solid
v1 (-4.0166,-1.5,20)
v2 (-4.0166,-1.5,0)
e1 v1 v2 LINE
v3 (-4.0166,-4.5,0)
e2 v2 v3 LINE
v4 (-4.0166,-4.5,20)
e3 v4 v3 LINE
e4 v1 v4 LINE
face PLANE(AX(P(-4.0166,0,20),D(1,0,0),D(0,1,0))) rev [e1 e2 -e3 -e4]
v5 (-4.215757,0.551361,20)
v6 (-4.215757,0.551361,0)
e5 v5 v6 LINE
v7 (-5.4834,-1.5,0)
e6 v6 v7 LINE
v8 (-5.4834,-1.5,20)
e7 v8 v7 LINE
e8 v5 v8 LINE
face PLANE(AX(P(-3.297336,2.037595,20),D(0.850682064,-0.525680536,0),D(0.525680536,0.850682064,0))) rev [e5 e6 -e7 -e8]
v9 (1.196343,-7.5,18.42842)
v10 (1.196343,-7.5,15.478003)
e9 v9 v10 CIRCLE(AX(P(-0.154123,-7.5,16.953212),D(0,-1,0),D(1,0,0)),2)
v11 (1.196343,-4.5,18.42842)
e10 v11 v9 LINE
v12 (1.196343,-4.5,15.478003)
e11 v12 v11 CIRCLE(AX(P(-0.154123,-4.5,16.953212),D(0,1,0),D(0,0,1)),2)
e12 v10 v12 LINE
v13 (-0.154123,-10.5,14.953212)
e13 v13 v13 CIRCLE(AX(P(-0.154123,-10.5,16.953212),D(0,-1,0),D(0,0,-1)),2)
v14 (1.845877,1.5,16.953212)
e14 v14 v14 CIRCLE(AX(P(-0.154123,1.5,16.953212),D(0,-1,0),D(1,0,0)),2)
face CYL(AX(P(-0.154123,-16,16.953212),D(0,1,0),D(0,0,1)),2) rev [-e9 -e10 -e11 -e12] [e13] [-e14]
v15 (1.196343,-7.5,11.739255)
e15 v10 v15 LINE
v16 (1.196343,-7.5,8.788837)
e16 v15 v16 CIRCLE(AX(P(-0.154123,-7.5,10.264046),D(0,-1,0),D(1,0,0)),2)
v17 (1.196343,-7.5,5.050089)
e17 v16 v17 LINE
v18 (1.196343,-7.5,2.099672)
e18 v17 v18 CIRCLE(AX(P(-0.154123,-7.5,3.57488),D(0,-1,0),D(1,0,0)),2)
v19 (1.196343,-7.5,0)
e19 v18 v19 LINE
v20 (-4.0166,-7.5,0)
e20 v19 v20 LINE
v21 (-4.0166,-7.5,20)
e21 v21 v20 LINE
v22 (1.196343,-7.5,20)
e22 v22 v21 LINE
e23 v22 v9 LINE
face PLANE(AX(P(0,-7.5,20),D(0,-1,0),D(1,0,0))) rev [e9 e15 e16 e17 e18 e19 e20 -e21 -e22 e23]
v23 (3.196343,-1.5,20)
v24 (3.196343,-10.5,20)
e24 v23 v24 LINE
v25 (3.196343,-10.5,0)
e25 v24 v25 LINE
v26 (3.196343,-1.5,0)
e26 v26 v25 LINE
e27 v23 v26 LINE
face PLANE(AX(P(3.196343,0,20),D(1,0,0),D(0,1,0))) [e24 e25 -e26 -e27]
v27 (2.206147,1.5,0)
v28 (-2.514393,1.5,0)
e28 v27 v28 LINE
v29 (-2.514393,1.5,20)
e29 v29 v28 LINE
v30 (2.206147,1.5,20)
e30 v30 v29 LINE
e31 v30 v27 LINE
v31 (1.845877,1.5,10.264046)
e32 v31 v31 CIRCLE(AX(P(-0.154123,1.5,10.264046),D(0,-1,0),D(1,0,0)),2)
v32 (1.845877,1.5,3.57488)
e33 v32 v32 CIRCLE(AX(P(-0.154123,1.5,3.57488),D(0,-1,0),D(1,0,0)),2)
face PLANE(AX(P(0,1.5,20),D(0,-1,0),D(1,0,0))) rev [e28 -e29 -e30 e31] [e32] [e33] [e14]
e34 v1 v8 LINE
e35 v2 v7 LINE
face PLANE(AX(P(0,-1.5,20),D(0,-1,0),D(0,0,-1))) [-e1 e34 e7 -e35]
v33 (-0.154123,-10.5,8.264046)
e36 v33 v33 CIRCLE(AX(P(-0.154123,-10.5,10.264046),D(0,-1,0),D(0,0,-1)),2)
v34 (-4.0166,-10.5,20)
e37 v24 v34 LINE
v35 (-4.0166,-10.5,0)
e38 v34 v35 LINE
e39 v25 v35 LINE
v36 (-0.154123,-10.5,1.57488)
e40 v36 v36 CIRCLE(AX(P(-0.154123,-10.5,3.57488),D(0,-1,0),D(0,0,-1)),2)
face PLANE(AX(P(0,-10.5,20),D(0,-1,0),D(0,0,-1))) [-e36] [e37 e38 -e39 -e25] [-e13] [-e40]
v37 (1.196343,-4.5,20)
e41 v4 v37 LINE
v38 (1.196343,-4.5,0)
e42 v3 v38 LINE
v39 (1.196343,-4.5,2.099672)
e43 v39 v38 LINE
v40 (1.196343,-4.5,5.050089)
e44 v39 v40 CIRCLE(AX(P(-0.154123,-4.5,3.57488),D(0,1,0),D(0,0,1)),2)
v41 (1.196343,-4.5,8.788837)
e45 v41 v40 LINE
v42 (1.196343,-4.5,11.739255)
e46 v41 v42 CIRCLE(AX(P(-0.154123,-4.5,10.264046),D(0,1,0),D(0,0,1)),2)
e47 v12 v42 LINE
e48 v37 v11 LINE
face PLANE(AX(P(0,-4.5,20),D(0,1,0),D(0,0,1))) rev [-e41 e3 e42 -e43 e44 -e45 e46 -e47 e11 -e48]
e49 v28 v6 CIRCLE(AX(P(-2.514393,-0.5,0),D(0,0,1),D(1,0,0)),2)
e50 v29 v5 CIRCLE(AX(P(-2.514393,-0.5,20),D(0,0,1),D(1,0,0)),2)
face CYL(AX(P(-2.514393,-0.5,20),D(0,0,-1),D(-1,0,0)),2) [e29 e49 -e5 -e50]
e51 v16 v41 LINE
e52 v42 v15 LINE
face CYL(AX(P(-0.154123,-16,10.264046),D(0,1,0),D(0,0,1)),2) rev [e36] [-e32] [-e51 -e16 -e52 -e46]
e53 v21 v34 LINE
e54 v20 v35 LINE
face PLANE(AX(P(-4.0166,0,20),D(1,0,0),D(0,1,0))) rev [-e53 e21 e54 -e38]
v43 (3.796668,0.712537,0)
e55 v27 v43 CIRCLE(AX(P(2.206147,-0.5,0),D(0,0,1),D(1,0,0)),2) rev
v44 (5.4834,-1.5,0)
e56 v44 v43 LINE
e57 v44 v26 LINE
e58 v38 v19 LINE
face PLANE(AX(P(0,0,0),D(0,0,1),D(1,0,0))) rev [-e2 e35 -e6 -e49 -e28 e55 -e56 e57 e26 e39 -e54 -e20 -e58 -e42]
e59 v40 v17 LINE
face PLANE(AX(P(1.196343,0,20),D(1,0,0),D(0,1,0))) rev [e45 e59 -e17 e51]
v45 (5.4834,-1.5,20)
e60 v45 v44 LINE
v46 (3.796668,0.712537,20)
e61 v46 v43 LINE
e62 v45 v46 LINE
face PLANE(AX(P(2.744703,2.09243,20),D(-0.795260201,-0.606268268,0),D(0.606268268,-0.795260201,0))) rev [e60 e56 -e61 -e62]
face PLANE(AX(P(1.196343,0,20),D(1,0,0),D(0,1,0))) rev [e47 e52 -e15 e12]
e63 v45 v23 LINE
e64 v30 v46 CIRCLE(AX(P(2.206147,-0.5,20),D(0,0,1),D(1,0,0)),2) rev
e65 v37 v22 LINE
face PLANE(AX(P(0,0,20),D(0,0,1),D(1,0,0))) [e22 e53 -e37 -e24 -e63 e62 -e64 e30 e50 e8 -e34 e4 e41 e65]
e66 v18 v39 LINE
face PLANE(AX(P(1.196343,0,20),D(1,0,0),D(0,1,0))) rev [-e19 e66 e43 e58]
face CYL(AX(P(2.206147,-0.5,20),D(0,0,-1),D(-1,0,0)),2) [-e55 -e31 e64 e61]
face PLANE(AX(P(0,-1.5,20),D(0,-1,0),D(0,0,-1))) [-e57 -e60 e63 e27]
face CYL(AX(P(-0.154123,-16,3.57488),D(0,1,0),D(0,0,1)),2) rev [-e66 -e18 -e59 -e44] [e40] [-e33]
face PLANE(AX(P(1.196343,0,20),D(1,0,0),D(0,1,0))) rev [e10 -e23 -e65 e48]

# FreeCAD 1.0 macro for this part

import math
import FreeCAD as App
import Part
import Sketcher

V = App.Vector
Q = App.Units.Quantity

doc = App.newDocument("Part")
body = doc.addObject("PartDesign::Body", "Body")

# Sketch on XY plane
sketch1 = body.newObject("Sketcher::SketchObject", "Sketch")
sketch1.AttachmentSupport = (doc.getObject("XY_Plane"), [""])
sketch1.MapMode = "FlatFace"
sketch1.addGeometry([
    Part.LineSegment(V(3.196343, -1.5, 0), V(5.4834, -1.5, 0)),  # 0
    Part.LineSegment(V(5.4834, -1.5, 0), V(3.796668, 0.712537, 0)),  # 1
    Part.ArcOfCircle(Part.Circle(V(2.206147, -0.5, 0), V(0, 0, 1), 2), math.radians(37.320161), math.radians(90)),  # 2
    Part.LineSegment(V(2.206147, 1.5, 0), V(-2.514393, 1.5, 0)),  # 3
    Part.ArcOfCircle(Part.Circle(V(-2.514393, -0.5, 0), V(0, 0, 1), 2), math.radians(90), math.radians(148.285932)),  # 4
    Part.LineSegment(V(-4.215757, 0.551361, 0), V(-5.4834, -1.5, 0)),  # 5
    Part.LineSegment(V(-5.4834, -1.5, 0), V(-4.0166, -1.5, 0)),  # 6
    Part.LineSegment(V(-4.0166, -1.5, 0), V(-4.0166, -4.5, 0)),  # 7
    Part.LineSegment(V(-4.0166, -4.5, 0), V(1.196343, -4.5, 0)),  # 8
    Part.LineSegment(V(1.196343, -4.5, 0), V(1.196343, -7.5, 0)),  # 9
    Part.LineSegment(V(1.196343, -7.5, 0), V(-4.0166, -7.5, 0)),  # 10
    Part.LineSegment(V(-4.0166, -7.5, 0), V(-4.0166, -10.5, 0)),  # 11
    Part.LineSegment(V(-4.0166, -10.5, 0), V(3.196343, -10.5, 0)),  # 12
    Part.LineSegment(V(3.196343, -10.5, 0), V(3.196343, -1.5, 0)),  # 13
], False)
sketch1.addConstraint([
    Sketcher.Constraint("Coincident", 0, 2, 1, 1),
    Sketcher.Constraint("Tangent", 1, 2, 2, 1),
    Sketcher.Constraint("Tangent", 2, 2, 3, 1),
    Sketcher.Constraint("Tangent", 3, 2, 4, 1),
    Sketcher.Constraint("Tangent", 4, 2, 5, 1),
    Sketcher.Constraint("Coincident", 5, 2, 6, 1),
    Sketcher.Constraint("Coincident", 6, 2, 7, 1),
    Sketcher.Constraint("Coincident", 7, 2, 8, 1),
    Sketcher.Constraint("Coincident", 8, 2, 9, 1),
    Sketcher.Constraint("Coincident", 9, 2, 10, 1),
    Sketcher.Constraint("Coincident", 10, 2, 11, 1),
    Sketcher.Constraint("Coincident", 11, 2, 12, 1),
    Sketcher.Constraint("Coincident", 12, 2, 13, 1),
    Sketcher.Constraint("Coincident", 13, 2, 0, 1),
    Sketcher.Constraint("Horizontal", 0),
    Sketcher.Constraint("Horizontal", 3),
    Sketcher.Constraint("Horizontal", 6),
    Sketcher.Constraint("Vertical", 7),
    Sketcher.Constraint("Horizontal", 8),
    Sketcher.Constraint("Vertical", 9),
    Sketcher.Constraint("Horizontal", 10),
    Sketcher.Constraint("Vertical", 11),
    Sketcher.Constraint("Horizontal", 12),
    Sketcher.Constraint("Vertical", 13),
    Sketcher.Constraint("Equal", 2, 4),
    Sketcher.Constraint("Symmetric", 0, 2, 5, 2, -2),
    Sketcher.Constraint("Vertical", 7, 2, 10, 2),
    Sketcher.Constraint("Equal", 7, 9),
    Sketcher.Constraint("Equal", 9, 11),
    Sketcher.Constraint("Radius", 2, Q("2 mm")),
    Sketcher.Constraint("DistanceY", 7, 2, 7, 1, Q("3 mm")),
    Sketcher.Constraint("DistanceY", 0, 2, 2, 3, Q("1 mm")),
    Sketcher.Constraint("DistanceX", 9, 2, 12, 2, Q("2 mm")),
    Sketcher.Constraint("DistanceY", 2, 3, -1, 1, Q("0.5 mm")),
    Sketcher.Constraint("DistanceX", 6, 1, 6, 2, Q("1.466799 mm")),
    Sketcher.Constraint("DistanceX", 3, 2, 3, 1, Q("4.720541 mm")),
    Sketcher.Constraint("DistanceX", -1, 1, 0, 2, Q("5.4834 mm")),
    Sketcher.Constraint("Distance", 5, Q("2.411431 mm")),
    Sketcher.Constraint("DistanceX", 0, 1, 0, 2, Q("2.287056 mm")),
])
pad1 = body.newObject("PartDesign::Pad", "Pad")
pad1.Profile = sketch1
pad1.Length = 20

# Sketch on XZ plane
sketch2 = body.newObject("Sketcher::SketchObject", "Sketch001")
sketch2.AttachmentSupport = (doc.getObject("XZ_Plane"), [""])
sketch2.MapMode = "FlatFace"
sketch2.addGeometry([
    Part.Circle(V(-0.154123, 3.57488, 0), V(0, 0, 1), 2),
    Part.Circle(V(-0.154123, 10.264046, 0), V(0, 0, 1), 2),
    Part.Circle(V(-0.154123, 16.953212, 0), V(0, 0, 1), 2),
], False)
sketch2.addConstraint([
    Sketcher.Constraint("Equal", 0, 1),
    Sketcher.Constraint("Equal", 1, 2),
    Sketcher.Constraint("Vertical", 0, 3, 1, 3),
    Sketcher.Constraint("Vertical", 1, 3, 2, 3),
    Sketcher.Constraint("Diameter", 0, Q("4 mm")),
    Sketcher.Constraint("DistanceY", -1, 1, 0, 3, Q("3.57488 mm")),
    Sketcher.Constraint("DistanceY", -1, 1, 2, 3, Q("16.953212 mm")),
    Sketcher.Constraint("DistanceX", 0, 3, -1, 1, Q("0.154123 mm")),
    Sketcher.Constraint("DistanceY", -1, 1, 1, 3, Q("10.264046 mm")),
])
pocket1 = body.newObject("PartDesign::Pocket", "Pocket")
pocket1.Profile = sketch2
pocket1.Type = "ThroughAll"
pocket1.Midplane = True

doc.recompute()
